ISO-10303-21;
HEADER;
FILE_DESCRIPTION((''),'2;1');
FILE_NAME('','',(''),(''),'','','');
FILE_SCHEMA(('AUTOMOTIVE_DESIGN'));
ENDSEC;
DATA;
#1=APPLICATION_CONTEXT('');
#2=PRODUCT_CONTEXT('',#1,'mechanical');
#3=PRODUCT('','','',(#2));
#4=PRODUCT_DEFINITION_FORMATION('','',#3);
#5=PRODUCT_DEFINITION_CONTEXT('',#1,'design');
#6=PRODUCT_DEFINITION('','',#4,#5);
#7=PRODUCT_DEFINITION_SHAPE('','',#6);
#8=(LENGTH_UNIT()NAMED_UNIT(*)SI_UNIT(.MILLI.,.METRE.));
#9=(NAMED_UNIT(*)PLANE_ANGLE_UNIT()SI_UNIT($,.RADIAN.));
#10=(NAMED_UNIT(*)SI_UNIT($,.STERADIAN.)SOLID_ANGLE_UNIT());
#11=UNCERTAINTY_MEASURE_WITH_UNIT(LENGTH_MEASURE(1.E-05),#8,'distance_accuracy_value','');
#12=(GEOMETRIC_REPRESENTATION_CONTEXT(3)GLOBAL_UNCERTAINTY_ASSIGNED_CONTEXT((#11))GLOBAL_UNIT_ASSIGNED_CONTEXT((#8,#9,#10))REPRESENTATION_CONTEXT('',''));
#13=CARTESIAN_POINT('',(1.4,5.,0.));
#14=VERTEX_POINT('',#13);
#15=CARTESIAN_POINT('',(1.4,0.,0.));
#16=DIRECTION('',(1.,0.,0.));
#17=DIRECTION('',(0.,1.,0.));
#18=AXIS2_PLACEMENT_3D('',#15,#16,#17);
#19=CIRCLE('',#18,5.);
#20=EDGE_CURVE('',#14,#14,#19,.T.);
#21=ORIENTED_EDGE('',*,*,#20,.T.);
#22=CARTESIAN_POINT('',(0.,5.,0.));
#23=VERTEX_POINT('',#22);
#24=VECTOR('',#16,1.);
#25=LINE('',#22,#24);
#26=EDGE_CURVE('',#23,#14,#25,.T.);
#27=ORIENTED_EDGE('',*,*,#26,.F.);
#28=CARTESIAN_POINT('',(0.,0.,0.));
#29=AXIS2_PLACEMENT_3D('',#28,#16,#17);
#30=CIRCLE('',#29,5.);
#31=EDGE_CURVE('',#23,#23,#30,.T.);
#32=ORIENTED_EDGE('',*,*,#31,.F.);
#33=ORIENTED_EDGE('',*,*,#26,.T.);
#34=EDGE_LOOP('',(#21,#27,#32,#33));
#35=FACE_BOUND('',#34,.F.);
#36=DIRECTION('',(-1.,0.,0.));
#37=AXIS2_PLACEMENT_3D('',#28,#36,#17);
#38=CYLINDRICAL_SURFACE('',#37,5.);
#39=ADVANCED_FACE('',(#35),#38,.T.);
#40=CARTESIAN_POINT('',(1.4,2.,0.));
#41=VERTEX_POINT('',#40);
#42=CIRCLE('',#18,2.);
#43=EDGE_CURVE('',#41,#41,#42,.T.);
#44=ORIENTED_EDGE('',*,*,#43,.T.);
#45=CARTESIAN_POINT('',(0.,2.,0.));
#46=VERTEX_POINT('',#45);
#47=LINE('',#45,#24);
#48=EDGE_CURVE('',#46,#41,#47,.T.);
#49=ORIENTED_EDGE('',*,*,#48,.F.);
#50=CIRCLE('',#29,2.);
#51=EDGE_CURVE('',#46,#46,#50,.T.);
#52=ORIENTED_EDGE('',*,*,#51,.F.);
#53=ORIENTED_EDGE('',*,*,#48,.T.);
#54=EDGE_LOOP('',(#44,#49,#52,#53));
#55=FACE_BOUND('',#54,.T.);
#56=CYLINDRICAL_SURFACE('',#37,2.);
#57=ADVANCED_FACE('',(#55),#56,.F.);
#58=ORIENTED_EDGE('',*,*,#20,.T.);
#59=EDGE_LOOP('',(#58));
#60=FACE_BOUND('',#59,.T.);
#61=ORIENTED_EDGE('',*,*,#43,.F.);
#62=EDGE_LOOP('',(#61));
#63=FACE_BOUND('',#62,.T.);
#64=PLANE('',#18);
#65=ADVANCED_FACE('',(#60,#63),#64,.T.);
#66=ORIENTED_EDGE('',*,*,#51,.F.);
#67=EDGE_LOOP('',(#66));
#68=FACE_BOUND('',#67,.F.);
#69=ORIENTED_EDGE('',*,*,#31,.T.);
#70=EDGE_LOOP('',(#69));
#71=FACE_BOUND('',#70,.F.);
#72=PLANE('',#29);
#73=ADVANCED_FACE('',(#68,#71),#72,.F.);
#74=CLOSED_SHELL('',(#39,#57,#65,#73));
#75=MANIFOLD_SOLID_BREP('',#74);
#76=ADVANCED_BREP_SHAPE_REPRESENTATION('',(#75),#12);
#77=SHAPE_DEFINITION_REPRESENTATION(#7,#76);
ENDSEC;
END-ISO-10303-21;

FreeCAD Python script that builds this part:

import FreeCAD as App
import Part
import Sketcher

V = App.Vector

doc = App.newDocument("Part")
body = doc.addObject("PartDesign::Body", "Body")

# Sketch on YZ plane
sketch1 = doc.addObject("Sketcher::SketchObject", "Sketch")
body.addObject(sketch1)
sketch1.AttachmentSupport = (doc.YZ_Plane, [""])
sketch1.MapMode = "FlatFace"
sketch1.addGeometry(Part.Circle(V(0, 0, 0), V(0, 0, 1), 5), False)
sketch1.addGeometry(Part.Circle(V(0, 0, 0), V(0, 0, 1), 2), False)
sketch1.addConstraint(Sketcher.Constraint("Coincident", 0, 3, -1, 1))
sketch1.addConstraint(Sketcher.Constraint("Coincident", 1, 3, -1, 1))
sketch1.addConstraint(Sketcher.Constraint("Diameter", 0, 10.0))
sketch1.addConstraint(Sketcher.Constraint("Diameter", 1, 4.0))
pad1 = doc.addObject("PartDesign::Pad", "Pad")
body.addObject(pad1)
pad1.Profile = sketch1
pad1.Length = 1.4

doc.recompute()
